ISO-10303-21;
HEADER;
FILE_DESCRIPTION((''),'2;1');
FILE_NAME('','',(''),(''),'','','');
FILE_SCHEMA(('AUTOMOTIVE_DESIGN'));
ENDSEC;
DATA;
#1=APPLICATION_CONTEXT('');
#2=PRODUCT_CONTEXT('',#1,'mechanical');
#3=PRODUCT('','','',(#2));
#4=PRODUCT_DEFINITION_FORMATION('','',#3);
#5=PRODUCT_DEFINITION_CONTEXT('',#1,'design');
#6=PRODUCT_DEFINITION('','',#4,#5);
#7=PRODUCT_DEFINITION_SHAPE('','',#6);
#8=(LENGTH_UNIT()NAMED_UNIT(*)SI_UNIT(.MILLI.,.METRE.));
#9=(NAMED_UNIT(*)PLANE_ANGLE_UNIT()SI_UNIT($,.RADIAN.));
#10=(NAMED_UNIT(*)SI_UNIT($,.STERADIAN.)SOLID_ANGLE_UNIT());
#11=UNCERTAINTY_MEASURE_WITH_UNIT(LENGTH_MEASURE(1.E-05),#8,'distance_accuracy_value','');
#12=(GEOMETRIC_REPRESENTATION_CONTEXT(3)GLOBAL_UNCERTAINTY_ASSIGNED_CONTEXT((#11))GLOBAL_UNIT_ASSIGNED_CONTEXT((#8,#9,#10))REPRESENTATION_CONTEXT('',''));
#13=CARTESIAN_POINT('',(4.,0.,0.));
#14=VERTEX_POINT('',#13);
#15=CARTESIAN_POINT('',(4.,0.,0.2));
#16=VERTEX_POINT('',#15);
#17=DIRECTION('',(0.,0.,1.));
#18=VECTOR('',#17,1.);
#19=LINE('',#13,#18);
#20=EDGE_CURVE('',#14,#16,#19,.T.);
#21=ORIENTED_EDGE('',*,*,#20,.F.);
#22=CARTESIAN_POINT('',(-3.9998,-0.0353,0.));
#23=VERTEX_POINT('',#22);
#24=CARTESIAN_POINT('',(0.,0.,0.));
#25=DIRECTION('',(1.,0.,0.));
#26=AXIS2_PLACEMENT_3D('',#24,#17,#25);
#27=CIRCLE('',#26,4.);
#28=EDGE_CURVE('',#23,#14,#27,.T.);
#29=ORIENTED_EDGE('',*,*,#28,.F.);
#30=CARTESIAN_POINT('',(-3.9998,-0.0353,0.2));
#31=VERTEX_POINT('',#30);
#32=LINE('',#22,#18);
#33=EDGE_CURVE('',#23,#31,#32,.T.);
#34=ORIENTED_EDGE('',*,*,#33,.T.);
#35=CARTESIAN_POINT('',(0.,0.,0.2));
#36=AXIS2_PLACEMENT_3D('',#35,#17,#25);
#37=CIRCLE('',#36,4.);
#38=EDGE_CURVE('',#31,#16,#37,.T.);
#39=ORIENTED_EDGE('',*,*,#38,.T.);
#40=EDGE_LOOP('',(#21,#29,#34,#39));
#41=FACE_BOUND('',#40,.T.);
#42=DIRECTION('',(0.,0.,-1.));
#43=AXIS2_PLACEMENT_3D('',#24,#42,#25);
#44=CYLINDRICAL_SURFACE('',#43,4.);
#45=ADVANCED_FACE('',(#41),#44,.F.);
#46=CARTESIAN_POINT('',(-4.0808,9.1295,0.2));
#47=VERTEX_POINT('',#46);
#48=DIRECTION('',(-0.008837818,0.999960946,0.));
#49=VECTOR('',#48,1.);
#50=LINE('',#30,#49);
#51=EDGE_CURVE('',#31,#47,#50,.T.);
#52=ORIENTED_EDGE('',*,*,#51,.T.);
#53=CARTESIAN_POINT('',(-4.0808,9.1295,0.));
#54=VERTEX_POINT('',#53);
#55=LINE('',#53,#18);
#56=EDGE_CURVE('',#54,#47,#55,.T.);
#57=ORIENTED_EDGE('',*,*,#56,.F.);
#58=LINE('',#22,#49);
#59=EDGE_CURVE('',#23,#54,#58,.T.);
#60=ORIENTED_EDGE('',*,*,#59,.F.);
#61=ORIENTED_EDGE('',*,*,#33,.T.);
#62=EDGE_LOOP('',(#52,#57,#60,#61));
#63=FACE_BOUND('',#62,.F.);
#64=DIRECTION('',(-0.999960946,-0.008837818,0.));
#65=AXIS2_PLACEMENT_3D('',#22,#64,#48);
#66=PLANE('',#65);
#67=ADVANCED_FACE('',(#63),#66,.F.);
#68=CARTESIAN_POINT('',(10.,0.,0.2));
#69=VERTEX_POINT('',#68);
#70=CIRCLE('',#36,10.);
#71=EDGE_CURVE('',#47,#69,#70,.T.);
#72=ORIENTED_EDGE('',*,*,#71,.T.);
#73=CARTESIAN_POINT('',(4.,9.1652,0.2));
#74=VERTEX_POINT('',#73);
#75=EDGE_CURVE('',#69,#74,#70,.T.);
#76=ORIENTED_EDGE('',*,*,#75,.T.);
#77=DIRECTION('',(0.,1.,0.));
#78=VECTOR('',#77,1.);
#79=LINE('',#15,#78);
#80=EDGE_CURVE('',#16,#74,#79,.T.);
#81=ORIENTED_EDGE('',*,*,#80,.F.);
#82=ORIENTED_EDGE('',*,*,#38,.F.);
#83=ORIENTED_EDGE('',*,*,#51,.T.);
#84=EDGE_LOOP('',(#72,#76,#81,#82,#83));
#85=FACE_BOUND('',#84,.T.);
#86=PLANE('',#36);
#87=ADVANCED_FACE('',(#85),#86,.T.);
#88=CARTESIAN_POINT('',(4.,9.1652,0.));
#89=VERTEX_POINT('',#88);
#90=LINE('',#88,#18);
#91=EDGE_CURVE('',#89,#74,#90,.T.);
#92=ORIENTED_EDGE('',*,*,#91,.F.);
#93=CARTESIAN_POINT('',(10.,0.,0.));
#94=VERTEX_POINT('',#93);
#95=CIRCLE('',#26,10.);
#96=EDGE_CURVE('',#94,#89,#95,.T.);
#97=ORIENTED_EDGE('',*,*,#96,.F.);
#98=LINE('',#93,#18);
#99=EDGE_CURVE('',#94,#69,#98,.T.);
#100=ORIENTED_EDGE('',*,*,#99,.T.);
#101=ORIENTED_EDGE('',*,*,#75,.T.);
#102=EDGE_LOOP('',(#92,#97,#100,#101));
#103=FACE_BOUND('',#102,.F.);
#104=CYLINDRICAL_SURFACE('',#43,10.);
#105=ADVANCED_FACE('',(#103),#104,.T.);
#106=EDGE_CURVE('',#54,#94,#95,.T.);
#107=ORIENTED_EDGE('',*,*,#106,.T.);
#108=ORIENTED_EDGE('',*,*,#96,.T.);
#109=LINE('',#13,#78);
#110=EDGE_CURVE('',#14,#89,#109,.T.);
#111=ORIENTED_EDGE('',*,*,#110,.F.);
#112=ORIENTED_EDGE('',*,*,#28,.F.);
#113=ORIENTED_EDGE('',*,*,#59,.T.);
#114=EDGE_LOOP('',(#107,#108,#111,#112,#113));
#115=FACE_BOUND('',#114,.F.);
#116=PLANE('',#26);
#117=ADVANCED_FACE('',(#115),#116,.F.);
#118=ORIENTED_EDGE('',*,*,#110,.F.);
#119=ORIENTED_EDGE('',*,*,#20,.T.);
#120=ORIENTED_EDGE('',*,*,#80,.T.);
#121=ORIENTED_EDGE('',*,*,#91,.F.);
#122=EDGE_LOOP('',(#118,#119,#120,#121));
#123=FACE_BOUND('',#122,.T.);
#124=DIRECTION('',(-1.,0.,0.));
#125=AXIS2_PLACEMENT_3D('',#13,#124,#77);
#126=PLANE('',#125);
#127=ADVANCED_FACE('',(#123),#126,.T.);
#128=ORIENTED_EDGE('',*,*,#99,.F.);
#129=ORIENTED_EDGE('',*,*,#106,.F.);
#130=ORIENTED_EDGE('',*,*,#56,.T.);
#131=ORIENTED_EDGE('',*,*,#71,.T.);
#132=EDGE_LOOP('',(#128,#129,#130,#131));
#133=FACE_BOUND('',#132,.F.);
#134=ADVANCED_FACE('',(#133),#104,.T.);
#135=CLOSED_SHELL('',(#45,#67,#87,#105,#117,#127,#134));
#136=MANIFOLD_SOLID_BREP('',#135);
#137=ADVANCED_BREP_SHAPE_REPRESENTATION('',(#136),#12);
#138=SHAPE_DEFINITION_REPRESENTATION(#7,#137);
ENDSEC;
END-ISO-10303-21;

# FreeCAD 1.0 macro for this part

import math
import FreeCAD as App
import Part
import Sketcher
from FreeCAD import Vector
Q = App.Units.Quantity

doc = App.newDocument("Part")
body = doc.addObject("PartDesign::Body", "Body")

sketch1 = body.newObject("Sketcher::SketchObject", "Sketch")
sketch1.AttachmentSupport = (doc.getObject("XY_Plane"), [""])
sketch1.MapMode = "FlatFace"
sketch1.addGeometry(Part.LineSegment(Vector(4, 9.1652, 0), Vector(4, 0, 0)), False)
sketch1.addGeometry(Part.ArcOfCircle(Part.Circle(Vector(0, 0, 0), Vector(0, 0, 1), 4), math.radians(-179.494353), math.radians(0)), False)
sketch1.addGeometry(Part.LineSegment(Vector(-3.9998, -0.0353, 0), Vector(-4.0808, 9.1295, 0)), False)
sketch1.addGeometry(Part.ArcOfCircle(Part.Circle(Vector(0, 0, 0), Vector(0, 0, 1), 10), math.radians(114.084191), math.radians(426.421933)), False)
sketch1.addConstraint(Sketcher.Constraint("Tangent", 0, 2, 1, 2))
sketch1.addConstraint(Sketcher.Constraint("Tangent", 1, 1, 2, 1))
sketch1.addConstraint(Sketcher.Constraint("Coincident", 2, 2, 3, 1))
sketch1.addConstraint(Sketcher.Constraint("Coincident", 3, 2, 0, 1))
sketch1.addConstraint(Sketcher.Constraint("Vertical", 0))
sketch1.addConstraint(Sketcher.Constraint("Coincident", 1, 3, -1, 1))
sketch1.addConstraint(Sketcher.Constraint("Coincident", 3, 3, -1, 1))
sketch1.addConstraint(Sketcher.Constraint("Radius", 1, Q("4 mm")))
sketch1.addConstraint(Sketcher.Constraint("Radius", 3, Q("10 mm")))
sketch1.addConstraint(Sketcher.Constraint("DistanceX", 2, 2, 1, 1, Q("0.081 mm")))
pad1 = body.newObject("PartDesign::Pad", "Pad")
pad1.Profile = sketch1
pad1.Length = 0.2

doc.recompute()
